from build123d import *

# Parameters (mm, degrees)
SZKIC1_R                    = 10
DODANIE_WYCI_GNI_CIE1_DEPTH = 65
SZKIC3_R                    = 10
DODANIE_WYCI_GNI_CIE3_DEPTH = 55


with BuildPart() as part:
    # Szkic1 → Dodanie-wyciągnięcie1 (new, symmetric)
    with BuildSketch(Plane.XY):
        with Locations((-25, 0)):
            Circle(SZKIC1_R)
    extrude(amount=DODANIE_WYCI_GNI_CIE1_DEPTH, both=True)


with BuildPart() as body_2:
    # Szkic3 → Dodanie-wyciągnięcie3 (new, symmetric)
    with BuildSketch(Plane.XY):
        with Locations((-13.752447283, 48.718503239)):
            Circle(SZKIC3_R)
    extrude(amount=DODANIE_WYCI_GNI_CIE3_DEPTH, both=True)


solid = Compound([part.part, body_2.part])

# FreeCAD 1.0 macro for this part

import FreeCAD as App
import Part
import Sketcher
from FreeCAD import Vector

doc = App.newDocument("Part")
body = doc.addObject("PartDesign::Body", "Body")

sketch1 = body.newObject("Sketcher::SketchObject", "Sketch")
sketch1.AttachmentSupport = (doc.getObject("XY_Plane"), [""])
sketch1.MapMode = "FlatFace"
sketch1.addGeometry(Part.Circle(Vector(-25, 0, 0), Vector(0, 0, 1), 10), False)
sketch1.addConstraint([
    Sketcher.Constraint("PointOnObject", 0, 3, -1),
    Sketcher.Constraint("Diameter", 0, 20.0),
    Sketcher.Constraint("DistanceX", 0, 3, -1, 1, 25.0),
])
pad1 = body.newObject("PartDesign::Pad", "Pad")
pad1.Profile = sketch1
pad1.Length = 130
pad1.Midplane = True
body2 = doc.addObject("PartDesign::Body", "Body001")

sketch2 = body2.newObject("Sketcher::SketchObject", "Sketch001")
sketch2.AttachmentSupport = (doc.getObject("XY_Plane001"), [""])
sketch2.MapMode = "FlatFace"
sketch2.addGeometry(Part.Circle(Vector(-13.752447, 48.718503, 0), Vector(0, 0, 1), 10), False)
sketch2.addConstraint([
    Sketcher.Constraint("Diameter", 0, 20.0),
    Sketcher.Constraint("DistanceX", 0, 3, -1, 1, 13.752447),
    Sketcher.Constraint("DistanceY", -1, 1, 0, 3, 48.718503),
])
pad2 = body2.newObject("PartDesign::Pad", "Pad001")
pad2.Profile = sketch2
pad2.Length = 110
pad2.Midplane = True

doc.recompute()
